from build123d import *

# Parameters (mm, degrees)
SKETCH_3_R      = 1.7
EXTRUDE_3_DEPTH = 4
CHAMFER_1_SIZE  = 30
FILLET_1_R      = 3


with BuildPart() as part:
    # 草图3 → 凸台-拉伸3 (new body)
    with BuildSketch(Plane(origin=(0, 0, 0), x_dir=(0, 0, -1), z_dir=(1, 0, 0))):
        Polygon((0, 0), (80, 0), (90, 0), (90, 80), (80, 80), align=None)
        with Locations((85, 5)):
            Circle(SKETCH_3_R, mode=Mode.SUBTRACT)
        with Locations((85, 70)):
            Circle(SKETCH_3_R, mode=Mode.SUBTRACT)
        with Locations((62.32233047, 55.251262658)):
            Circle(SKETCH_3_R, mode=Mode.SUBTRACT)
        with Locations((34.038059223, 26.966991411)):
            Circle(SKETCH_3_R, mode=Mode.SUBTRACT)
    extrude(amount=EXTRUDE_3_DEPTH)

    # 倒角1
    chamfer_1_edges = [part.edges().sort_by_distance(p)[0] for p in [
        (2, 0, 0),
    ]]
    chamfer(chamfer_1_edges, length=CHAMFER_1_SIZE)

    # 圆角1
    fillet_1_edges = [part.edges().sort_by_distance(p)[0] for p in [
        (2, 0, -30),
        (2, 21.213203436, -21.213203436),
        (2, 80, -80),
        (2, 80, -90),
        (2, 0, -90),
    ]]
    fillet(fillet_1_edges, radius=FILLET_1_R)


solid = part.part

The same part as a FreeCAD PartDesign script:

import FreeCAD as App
import Part
import Sketcher


def edges_at(feature, points):
    """Names of the edges that pass closest to the given points."""
    edges = feature.Shape.Edges
    near = lambda p: min(range(len(edges)), key=lambda i: edges[i].distToShape(Part.Vertex(*p))[0])
    return sorted({f"Edge{near(p) + 1}" for p in points})

doc = App.newDocument("Part")
params = doc.addObject("Spreadsheet::Sheet", "Params")
for row, (alias, value) in enumerate([
    ("sketch1_diameter", "3.4 mm"),
    ("sketch1_width", "80 mm"),
    ("sketch1_height", "90 mm"),
    ("sketch1_height2", "10 mm"),
    ("pad1_length", "4 mm"),
    ("chamfer_size", "30 mm"),
    ("fillet_radius", "3 mm"),
], start=1):
    params.set(f"A{row}", alias)
    params.set(f"B{row}", "=" + value)
    params.setAlias(f"B{row}", alias)

body = doc.addObject("PartDesign::Body", "Body")

# Sketch on YZ plane
sketch1 = body.newObject("Sketcher::SketchObject", "Sketch")
sketch1.AttachmentSupport = (doc.getObject("YZ_Plane"), [""])
sketch1.MapMode = "FlatFace"
sketch1.addGeometry([
    Part.LineSegment(App.Vector(0, 0, 0), App.Vector(0, -90, 0)),  # 0
    Part.LineSegment(App.Vector(0, -90, 0), App.Vector(80, -90, 0)),  # 1
    Part.LineSegment(App.Vector(80, -90, 0), App.Vector(80, -80, 0)),  # 2
    Part.LineSegment(App.Vector(80, -80, 0), App.Vector(0, 0, 0)),  # 3
    Part.Circle(App.Vector(27, -34, 0), App.Vector(0, 0, 1), 1.7),  # 4
    Part.Circle(App.Vector(5, -85, 0), App.Vector(0, 0, 1), 1.7),  # 5
    Part.Circle(App.Vector(55.3, -62.3, 0), App.Vector(0, 0, 1), 1.7),  # 6
    Part.Circle(App.Vector(70, -85, 0), App.Vector(0, 0, 1), 1.7),  # 7
], False)
sketch1.addConstraint([
    Sketcher.Constraint("Coincident", 0, 2, 1, 1),
    Sketcher.Constraint("Coincident", 1, 2, 2, 1),
    Sketcher.Constraint("Coincident", 2, 2, 3, 1),
    Sketcher.Constraint("Coincident", 3, 2, 0, 1),
    Sketcher.Constraint("Vertical", 0),
    Sketcher.Constraint("Horizontal", 1),
    Sketcher.Constraint("Vertical", 2),
    Sketcher.Constraint("Coincident", 3, 2, -1, 1),
    Sketcher.Constraint("Equal", 4, 5),
    Sketcher.Constraint("Equal", 5, 6),
    Sketcher.Constraint("Equal", 6, 7),
    Sketcher.Constraint("Horizontal", 5, 3, 7, 3),
    Sketcher.Constraint("Diameter", 4, 3.4),
    Sketcher.Constraint("DistanceX", 1, 1, 1, 2, 80.0),
    Sketcher.Constraint("DistanceY", 0, 2, 0, 1, 90.0),
    Sketcher.Constraint("DistanceY", 2, 1, 2, 2, 10.0),
    Sketcher.Constraint("DistanceX", -1, 1, 5, 3, 5.0),
    Sketcher.Constraint("DistanceY", 5, 3, -1, 1, 85.0),
    Sketcher.Constraint("DistanceX", -1, 1, 7, 3, 70.0),
    Sketcher.Constraint("DistanceX", -1, 1, 4, 3, 26.966991),
    Sketcher.Constraint("DistanceY", 4, 3, -1, 1, 34.038059),
    Sketcher.Constraint("DistanceY", 6, 3, -1, 1, 62.32233),
    Sketcher.Constraint("DistanceX", 4, 3, 6, 3, 28.284271),
])
sketch1.setExpression("Constraints[12]", "Params.sketch1_diameter")
sketch1.setExpression("Constraints[13]", "Params.sketch1_width")
sketch1.setExpression("Constraints[14]", "Params.sketch1_height")
sketch1.setExpression("Constraints[15]", "Params.sketch1_height2")
pad1 = body.newObject("PartDesign::Pad", "Pad")
pad1.Profile = sketch1
pad1.setExpression("Length", "Params.pad1_length")
doc.recompute()

chamfer = body.newObject("PartDesign::Chamfer", "Chamfer")
chamfer.Base = (pad1, edges_at(pad1, [(2, 0, 0)]))
chamfer.setExpression("Size", "Params.chamfer_size")
doc.recompute()

fillet = body.newObject("PartDesign::Fillet", "Fillet")
fillet.Base = (chamfer, edges_at(chamfer, [
    (2, 0, -30),
    (2, 21.213, -21.213),
    (2, 80, -80),
    (2, 80, -90),
    (2, 0, -90),
]))
fillet.setExpression("Radius", "Params.fillet_radius")

doc.recompute()
